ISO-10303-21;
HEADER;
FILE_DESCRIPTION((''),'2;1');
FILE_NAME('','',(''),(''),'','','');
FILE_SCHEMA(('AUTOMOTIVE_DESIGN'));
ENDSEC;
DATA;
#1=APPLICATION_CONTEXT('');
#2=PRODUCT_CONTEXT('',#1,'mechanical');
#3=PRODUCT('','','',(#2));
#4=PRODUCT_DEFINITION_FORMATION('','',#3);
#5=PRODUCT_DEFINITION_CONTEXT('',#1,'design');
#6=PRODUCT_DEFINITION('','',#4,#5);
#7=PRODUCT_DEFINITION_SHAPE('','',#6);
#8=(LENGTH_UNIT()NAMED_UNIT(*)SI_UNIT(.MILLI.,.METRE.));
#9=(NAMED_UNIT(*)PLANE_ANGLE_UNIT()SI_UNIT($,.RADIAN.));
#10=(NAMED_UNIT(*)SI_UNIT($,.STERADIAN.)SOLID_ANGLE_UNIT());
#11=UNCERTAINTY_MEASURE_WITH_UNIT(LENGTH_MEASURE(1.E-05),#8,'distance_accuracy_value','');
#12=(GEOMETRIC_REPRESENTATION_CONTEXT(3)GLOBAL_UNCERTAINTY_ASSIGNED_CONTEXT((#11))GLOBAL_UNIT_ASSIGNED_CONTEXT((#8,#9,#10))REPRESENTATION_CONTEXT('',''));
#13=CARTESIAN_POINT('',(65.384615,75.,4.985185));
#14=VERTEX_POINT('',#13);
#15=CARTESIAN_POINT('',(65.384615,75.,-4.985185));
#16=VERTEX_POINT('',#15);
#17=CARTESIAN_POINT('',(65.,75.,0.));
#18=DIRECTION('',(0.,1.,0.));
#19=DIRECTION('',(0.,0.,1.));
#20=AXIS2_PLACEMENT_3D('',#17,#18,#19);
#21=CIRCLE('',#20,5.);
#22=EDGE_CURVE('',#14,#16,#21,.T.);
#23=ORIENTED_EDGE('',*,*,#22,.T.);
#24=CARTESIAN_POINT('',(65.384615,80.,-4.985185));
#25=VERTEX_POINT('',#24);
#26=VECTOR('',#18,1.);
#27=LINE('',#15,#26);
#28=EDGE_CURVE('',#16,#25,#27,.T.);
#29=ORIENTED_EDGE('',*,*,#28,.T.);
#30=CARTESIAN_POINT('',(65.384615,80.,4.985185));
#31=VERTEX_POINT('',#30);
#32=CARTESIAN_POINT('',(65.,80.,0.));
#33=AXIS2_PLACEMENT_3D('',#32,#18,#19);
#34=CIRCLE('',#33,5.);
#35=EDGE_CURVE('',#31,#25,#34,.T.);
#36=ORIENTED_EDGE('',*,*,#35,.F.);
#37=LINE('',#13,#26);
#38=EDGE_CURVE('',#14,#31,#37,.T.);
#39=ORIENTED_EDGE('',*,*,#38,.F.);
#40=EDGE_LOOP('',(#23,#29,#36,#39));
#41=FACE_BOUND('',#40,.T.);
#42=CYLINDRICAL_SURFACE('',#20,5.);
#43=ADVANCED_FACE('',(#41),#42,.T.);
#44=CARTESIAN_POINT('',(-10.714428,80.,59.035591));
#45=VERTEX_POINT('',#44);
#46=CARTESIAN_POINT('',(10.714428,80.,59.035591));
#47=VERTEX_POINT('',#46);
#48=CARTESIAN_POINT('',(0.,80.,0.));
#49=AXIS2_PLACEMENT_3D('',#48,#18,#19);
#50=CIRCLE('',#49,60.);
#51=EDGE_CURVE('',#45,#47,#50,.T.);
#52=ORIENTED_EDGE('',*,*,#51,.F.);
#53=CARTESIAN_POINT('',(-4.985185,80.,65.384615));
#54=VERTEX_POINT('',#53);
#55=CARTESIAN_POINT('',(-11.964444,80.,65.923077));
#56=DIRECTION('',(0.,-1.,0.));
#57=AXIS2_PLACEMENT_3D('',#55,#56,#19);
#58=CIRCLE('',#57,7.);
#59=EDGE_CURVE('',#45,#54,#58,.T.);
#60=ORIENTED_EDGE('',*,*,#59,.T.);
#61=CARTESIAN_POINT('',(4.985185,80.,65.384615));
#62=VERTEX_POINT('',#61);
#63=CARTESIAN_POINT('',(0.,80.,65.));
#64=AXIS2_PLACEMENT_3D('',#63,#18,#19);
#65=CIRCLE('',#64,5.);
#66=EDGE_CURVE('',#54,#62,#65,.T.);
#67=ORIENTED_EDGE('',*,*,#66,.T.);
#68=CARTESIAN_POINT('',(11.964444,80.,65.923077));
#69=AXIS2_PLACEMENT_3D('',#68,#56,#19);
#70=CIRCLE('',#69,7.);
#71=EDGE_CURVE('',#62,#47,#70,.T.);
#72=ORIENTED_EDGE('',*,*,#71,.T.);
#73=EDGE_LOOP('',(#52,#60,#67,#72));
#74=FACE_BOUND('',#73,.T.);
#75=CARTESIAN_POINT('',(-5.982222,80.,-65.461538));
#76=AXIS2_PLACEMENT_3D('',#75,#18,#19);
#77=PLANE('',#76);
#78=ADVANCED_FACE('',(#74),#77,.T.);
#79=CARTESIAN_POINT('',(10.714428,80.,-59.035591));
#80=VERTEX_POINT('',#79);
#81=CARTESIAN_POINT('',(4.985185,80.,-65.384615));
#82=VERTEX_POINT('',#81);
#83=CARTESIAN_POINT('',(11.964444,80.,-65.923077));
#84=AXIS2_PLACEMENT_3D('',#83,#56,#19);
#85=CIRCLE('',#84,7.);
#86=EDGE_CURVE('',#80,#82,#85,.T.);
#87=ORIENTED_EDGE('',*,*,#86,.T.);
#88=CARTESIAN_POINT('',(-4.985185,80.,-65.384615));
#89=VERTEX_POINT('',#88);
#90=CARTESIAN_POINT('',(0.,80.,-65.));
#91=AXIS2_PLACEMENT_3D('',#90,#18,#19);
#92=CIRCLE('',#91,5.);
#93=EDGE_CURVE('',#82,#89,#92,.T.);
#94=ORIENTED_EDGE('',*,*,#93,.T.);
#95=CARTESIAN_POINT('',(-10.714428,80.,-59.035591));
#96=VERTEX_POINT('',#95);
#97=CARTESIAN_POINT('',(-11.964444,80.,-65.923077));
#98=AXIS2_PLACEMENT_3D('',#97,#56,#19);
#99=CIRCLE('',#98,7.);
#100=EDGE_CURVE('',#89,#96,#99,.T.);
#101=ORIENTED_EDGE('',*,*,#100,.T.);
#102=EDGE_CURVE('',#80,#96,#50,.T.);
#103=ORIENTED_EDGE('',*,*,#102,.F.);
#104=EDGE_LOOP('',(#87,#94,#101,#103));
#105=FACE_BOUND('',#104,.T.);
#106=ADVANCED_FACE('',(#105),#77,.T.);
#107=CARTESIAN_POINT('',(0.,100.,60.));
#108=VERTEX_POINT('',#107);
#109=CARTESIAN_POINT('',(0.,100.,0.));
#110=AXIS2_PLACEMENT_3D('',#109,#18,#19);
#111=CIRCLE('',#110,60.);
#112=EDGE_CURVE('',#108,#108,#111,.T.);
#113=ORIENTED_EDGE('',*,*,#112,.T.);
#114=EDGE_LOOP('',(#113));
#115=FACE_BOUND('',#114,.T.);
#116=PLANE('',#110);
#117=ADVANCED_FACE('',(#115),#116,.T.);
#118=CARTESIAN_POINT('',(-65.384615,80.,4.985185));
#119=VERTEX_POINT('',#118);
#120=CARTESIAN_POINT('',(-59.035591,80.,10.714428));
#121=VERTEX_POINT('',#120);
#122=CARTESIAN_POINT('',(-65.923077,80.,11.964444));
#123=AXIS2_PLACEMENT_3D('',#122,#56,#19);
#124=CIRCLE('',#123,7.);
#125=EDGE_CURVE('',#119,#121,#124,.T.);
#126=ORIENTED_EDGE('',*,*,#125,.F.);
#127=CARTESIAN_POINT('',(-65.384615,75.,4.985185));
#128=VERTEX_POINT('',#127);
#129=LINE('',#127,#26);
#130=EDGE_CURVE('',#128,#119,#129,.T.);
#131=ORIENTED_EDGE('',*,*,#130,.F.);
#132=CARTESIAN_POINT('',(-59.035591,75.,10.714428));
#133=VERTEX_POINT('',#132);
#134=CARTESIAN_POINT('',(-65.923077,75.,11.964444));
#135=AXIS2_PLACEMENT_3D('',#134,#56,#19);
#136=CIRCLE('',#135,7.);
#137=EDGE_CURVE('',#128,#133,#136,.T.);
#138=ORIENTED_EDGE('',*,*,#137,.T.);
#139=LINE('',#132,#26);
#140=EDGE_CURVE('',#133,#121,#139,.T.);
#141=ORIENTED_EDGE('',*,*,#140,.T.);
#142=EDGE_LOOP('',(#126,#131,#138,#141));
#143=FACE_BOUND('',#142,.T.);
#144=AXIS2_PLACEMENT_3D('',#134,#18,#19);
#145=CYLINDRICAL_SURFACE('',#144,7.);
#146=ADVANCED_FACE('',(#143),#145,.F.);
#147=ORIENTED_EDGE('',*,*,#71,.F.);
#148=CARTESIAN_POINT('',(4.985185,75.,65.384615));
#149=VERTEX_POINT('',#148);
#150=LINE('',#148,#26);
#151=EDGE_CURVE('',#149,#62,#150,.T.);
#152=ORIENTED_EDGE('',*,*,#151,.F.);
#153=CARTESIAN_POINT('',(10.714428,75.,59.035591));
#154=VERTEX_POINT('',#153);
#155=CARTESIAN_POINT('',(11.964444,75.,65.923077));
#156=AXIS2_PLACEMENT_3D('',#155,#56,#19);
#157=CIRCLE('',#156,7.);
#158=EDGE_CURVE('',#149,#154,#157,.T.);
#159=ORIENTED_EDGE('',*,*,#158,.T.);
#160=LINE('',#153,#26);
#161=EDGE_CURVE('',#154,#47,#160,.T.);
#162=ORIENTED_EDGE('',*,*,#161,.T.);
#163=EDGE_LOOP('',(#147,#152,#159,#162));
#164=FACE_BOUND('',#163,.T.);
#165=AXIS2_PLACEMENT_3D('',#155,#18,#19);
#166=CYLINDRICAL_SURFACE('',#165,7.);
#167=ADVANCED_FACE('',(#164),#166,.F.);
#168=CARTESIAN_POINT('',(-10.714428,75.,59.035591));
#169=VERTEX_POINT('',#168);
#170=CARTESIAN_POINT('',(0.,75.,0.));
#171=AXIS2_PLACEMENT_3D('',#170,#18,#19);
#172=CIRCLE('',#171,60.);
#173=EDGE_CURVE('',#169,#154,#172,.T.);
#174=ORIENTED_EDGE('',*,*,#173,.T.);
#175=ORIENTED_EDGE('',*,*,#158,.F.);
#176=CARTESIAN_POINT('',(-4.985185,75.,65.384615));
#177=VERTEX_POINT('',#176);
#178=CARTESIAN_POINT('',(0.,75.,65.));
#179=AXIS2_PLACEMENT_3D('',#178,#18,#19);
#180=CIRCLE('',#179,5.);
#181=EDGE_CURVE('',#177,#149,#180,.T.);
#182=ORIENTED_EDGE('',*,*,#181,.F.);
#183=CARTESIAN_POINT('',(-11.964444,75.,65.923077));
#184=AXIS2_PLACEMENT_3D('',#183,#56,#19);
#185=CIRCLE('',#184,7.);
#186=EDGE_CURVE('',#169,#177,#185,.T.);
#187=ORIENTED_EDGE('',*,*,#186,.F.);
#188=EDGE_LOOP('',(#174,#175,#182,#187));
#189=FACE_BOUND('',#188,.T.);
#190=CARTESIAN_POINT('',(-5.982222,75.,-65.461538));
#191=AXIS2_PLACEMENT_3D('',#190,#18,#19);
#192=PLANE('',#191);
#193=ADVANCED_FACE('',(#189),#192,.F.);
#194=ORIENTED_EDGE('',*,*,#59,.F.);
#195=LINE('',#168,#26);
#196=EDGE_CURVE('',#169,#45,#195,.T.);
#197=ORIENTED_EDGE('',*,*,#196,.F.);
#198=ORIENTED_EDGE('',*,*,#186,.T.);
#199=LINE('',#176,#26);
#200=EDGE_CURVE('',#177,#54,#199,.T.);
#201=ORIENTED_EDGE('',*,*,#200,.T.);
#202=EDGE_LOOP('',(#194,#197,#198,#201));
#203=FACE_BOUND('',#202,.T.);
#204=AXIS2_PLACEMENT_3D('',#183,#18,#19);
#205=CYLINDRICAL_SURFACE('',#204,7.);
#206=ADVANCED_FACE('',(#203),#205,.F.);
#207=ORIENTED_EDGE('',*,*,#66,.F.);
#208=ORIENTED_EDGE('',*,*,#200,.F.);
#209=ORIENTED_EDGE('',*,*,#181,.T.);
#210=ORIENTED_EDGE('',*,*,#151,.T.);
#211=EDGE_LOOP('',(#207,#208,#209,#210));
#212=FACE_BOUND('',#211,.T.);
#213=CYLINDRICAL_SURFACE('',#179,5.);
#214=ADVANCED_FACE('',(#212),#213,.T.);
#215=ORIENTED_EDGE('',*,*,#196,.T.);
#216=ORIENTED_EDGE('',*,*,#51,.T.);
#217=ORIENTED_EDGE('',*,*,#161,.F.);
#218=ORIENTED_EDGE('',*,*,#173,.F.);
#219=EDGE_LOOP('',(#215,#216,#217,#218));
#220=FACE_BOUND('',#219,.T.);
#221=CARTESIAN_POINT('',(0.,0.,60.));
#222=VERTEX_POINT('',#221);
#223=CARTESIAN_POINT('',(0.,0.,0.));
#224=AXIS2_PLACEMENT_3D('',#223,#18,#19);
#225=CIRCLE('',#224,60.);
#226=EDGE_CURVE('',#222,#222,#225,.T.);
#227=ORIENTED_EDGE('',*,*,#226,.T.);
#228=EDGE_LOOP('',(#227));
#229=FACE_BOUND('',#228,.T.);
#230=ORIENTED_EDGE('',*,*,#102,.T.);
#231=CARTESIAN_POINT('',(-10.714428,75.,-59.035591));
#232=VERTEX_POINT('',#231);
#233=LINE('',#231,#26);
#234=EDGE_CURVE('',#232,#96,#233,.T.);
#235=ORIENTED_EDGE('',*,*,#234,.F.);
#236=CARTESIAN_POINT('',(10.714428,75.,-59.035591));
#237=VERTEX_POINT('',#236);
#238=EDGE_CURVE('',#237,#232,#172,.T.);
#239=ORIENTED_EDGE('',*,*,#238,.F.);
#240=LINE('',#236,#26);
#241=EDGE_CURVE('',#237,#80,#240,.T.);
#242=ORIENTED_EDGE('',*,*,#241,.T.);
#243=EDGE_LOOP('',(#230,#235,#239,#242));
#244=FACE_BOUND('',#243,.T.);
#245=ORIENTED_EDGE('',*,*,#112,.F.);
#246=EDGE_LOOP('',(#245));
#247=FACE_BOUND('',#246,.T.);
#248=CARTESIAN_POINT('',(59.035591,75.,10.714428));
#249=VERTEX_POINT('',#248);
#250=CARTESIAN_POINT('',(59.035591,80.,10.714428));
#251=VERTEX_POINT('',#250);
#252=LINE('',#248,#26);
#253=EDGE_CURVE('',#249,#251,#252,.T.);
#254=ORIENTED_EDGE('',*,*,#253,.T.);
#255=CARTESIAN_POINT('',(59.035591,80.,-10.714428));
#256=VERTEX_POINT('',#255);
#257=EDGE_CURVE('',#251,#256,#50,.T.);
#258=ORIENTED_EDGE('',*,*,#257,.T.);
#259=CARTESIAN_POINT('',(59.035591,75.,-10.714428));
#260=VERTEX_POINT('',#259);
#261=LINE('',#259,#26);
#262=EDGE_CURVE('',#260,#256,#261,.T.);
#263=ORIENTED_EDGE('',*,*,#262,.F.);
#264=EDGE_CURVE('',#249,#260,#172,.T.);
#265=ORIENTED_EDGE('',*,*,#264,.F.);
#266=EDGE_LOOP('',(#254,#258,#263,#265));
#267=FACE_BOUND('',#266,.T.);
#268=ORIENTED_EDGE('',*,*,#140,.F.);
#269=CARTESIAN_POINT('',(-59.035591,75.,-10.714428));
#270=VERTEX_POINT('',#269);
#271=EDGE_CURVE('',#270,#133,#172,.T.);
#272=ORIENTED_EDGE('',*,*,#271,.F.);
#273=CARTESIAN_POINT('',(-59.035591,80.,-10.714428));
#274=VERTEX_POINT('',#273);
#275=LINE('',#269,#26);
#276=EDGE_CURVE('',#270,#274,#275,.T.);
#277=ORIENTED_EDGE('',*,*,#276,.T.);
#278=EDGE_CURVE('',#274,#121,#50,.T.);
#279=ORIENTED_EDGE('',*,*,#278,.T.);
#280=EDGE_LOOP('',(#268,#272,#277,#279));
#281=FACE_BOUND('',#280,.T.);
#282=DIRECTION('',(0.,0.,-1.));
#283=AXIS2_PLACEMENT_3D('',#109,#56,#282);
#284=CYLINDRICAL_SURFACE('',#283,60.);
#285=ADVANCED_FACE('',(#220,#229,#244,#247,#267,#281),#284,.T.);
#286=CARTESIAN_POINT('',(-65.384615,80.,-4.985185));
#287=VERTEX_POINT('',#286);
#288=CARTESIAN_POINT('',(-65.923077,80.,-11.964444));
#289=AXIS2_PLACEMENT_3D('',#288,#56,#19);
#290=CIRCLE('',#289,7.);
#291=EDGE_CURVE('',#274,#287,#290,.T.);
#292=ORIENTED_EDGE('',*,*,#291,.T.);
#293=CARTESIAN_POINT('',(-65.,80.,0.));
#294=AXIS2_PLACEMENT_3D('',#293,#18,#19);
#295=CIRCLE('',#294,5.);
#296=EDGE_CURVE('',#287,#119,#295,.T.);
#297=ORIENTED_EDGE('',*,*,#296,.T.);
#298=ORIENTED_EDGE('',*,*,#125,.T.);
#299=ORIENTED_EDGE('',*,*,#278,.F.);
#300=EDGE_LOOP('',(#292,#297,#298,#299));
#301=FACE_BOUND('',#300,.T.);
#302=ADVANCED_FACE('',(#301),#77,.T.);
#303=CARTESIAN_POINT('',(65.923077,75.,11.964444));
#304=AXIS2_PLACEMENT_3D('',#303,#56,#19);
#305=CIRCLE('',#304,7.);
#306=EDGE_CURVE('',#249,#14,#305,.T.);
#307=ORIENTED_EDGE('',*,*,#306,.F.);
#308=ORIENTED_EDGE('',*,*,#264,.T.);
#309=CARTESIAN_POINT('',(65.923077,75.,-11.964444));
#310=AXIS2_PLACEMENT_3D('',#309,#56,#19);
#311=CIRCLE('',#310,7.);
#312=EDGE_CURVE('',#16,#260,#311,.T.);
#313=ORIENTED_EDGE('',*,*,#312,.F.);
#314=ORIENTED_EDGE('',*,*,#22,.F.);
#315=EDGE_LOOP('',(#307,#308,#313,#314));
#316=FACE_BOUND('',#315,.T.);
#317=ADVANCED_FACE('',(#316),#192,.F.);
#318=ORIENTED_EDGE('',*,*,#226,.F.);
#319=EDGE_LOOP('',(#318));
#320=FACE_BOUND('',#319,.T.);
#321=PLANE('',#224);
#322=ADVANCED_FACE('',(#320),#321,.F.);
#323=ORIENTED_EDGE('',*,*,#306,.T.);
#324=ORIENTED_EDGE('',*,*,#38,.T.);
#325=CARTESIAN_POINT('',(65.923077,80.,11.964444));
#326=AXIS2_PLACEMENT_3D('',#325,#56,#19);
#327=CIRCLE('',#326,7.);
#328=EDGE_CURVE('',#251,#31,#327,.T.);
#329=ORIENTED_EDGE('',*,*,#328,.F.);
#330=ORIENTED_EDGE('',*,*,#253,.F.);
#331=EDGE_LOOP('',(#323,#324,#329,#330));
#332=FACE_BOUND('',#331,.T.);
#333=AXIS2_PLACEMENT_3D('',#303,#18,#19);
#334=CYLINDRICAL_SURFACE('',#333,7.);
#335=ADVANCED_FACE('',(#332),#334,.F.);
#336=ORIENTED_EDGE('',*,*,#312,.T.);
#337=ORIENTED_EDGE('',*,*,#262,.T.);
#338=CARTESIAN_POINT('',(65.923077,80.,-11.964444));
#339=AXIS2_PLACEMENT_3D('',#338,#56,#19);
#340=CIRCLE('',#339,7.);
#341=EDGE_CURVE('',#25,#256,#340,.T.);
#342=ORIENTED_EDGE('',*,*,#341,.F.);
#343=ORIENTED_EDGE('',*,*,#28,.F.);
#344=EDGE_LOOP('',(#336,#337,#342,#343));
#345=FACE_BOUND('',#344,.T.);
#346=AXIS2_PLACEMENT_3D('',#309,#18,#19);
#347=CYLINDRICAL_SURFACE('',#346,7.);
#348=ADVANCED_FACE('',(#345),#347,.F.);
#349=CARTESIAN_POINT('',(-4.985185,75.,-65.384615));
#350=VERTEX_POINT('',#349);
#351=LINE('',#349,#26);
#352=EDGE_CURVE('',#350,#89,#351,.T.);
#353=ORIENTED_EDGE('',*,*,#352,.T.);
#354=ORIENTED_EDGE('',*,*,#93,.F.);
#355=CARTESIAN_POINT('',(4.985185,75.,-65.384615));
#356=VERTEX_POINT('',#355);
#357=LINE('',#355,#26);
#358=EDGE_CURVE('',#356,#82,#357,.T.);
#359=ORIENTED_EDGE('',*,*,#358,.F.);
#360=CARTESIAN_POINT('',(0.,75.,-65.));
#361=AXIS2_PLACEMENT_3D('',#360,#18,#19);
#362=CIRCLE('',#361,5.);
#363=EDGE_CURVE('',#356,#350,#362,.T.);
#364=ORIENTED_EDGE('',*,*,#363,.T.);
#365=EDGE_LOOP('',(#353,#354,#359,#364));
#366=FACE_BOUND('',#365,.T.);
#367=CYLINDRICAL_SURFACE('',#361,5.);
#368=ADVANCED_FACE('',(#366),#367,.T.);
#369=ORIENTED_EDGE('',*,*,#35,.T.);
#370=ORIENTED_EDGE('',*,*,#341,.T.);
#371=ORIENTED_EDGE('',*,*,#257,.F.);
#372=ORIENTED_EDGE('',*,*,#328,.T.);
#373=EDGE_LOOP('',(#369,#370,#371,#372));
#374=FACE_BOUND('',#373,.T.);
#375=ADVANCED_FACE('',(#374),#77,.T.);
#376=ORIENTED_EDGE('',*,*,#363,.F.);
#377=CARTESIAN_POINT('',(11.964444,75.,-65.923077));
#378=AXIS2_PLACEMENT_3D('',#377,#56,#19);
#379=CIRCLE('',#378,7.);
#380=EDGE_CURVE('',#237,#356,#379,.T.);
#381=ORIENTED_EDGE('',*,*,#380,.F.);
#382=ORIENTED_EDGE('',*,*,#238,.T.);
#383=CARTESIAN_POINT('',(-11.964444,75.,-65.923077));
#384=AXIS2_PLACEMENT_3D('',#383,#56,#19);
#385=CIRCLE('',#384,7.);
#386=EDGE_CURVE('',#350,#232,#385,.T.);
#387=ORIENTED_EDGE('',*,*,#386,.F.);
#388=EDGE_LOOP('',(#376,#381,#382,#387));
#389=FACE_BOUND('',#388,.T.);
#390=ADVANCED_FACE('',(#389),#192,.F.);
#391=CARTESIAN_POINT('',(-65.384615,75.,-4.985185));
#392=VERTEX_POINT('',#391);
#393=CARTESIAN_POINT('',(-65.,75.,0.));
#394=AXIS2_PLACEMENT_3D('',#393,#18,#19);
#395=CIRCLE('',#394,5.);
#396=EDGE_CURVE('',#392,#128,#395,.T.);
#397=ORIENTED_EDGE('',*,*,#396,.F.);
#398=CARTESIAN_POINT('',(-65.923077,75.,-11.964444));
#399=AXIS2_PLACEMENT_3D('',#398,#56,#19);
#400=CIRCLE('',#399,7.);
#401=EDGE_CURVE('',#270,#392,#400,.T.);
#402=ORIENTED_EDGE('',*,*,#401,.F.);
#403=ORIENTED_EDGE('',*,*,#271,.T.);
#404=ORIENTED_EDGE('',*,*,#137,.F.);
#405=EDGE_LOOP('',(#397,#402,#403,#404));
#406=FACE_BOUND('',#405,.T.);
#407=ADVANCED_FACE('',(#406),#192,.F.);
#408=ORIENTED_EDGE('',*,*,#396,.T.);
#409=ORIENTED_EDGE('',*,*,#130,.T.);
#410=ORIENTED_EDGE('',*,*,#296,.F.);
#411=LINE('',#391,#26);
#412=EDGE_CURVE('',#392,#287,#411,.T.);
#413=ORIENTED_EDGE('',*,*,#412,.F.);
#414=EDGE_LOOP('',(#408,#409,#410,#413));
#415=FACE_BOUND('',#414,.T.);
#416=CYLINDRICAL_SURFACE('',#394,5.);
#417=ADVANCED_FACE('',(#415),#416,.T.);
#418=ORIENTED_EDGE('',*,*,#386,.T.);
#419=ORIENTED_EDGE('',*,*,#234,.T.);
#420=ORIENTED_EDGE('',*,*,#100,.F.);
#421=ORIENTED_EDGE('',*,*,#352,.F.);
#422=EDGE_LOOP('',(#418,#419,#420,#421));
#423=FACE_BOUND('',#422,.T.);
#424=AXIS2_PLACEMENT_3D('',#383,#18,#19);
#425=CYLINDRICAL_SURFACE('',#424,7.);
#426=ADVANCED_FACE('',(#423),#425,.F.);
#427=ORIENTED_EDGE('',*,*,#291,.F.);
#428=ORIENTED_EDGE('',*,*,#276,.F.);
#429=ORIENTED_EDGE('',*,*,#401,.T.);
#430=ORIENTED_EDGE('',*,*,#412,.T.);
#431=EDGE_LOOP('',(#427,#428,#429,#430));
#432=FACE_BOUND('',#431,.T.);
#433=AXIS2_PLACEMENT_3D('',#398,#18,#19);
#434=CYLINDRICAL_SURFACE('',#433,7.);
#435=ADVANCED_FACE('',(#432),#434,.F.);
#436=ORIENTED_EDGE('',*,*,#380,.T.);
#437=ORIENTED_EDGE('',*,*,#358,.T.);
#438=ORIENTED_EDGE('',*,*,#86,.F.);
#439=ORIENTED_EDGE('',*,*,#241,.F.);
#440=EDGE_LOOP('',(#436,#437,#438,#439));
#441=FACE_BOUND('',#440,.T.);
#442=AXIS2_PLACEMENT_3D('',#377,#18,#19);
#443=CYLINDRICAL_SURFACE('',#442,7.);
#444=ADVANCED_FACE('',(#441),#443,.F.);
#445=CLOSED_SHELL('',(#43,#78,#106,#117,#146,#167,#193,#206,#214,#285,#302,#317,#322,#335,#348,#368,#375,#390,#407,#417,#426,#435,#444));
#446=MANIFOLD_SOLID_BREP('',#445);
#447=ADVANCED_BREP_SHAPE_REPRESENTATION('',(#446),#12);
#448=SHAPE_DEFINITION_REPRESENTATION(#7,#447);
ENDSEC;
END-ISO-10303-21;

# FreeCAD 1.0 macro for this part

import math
import FreeCAD as App
import Part
import Sketcher
Q = App.Units.Quantity

doc = App.newDocument("Part")
body = doc.addObject("PartDesign::Body", "Body")

# Sketch on XZ plane
sketch1 = body.newObject("Sketcher::SketchObject", "Sketch")
sketch1.AttachmentSupport = (doc.getObject("XZ_Plane"), [""])
sketch1.MapMode = "FlatFace"
sketch1.addGeometry(Part.Circle(App.Vector(0, 0, 0), App.Vector(0, 0, 1), 60), False)
sketch1.addConstraint([
    Sketcher.Constraint("Coincident", 0, 3, -1, 1),
    Sketcher.Constraint("Diameter", 0, Q("120 mm")),
])
pad1 = body.newObject("PartDesign::Pad", "Pad")
pad1.Profile = sketch1
pad1.Length = 100
pad1.Reversed = True

# Sketch on XZ plane
sketch2 = body.newObject("Sketcher::SketchObject", "Sketch001")
sketch2.AttachmentSupport = (doc.getObject("XZ_Plane"), [""])
sketch2.MapMode = "FlatFace"
sketch2.AttachmentOffset = App.Placement(App.Vector(0, 0, -75), App.Rotation())
sketch2.addGeometry([
    Part.ArcOfCircle(Part.Circle(App.Vector(0, 0, 0), App.Vector(0, 0, 1), 60), math.radians(-170), math.radians(-100)),  # 0
    Part.ArcOfCircle(Part.Circle(App.Vector(-66, -12, 0), App.Vector(0, 0, 1), 7), math.radians(10), math.radians(86)),  # 1
    Part.ArcOfCircle(Part.Circle(App.Vector(-65, 0, 0), App.Vector(0, 0, 1), 5), math.radians(94), math.radians(266)),  # 2
    Part.ArcOfCircle(Part.Circle(App.Vector(-66, 12, 0), App.Vector(0, 0, 1), 7), math.radians(-86), math.radians(-10)),  # 3
    Part.ArcOfCircle(Part.Circle(App.Vector(0, 0, 0), App.Vector(0, 0, 1), 60), math.radians(100), math.radians(170)),  # 4
    Part.ArcOfCircle(Part.Circle(App.Vector(-12, 66, 0), App.Vector(0, 0, 1), 7), math.radians(-80), math.radians(-4)),  # 5
    Part.ArcOfCircle(Part.Circle(App.Vector(0, 65, 0), App.Vector(0, 0, 1), 5), math.radians(4), math.radians(176)),  # 6
    Part.ArcOfCircle(Part.Circle(App.Vector(12, 66, 0), App.Vector(0, 0, 1), 7), math.radians(-176), math.radians(-100)),  # 7
    Part.ArcOfCircle(Part.Circle(App.Vector(0, 0, 0), App.Vector(0, 0, 1), 60), math.radians(10), math.radians(80)),  # 8
    Part.ArcOfCircle(Part.Circle(App.Vector(66, 12, 0), App.Vector(0, 0, 1), 7), math.radians(-170), math.radians(-94)),  # 9
    Part.ArcOfCircle(Part.Circle(App.Vector(65, 0, 0), App.Vector(0, 0, 1), 5), math.radians(-86), math.radians(86)),  # 10
    Part.ArcOfCircle(Part.Circle(App.Vector(66, -12, 0), App.Vector(0, 0, 1), 7), math.radians(94), math.radians(170)),  # 11
    Part.ArcOfCircle(Part.Circle(App.Vector(0, 0, 0), App.Vector(0, 0, 1), 60), math.radians(-80), math.radians(-10)),  # 12
    Part.ArcOfCircle(Part.Circle(App.Vector(12, -66, 0), App.Vector(0, 0, 1), 7), math.radians(100), math.radians(176)),  # 13
    Part.ArcOfCircle(Part.Circle(App.Vector(0, -65, 0), App.Vector(0, 0, 1), 5), math.radians(-176), math.radians(-4)),  # 14
    Part.ArcOfCircle(Part.Circle(App.Vector(-12, -66, 0), App.Vector(0, 0, 1), 7), math.radians(4), math.radians(80)),  # 15
], False)
sketch2.addConstraint([
    Sketcher.Constraint("Tangent", 0, 1, 1, 1),
    Sketcher.Constraint("Tangent", 1, 2, 2, 2),
    Sketcher.Constraint("Tangent", 2, 1, 3, 1),
    Sketcher.Constraint("Tangent", 3, 2, 4, 2),
    Sketcher.Constraint("Tangent", 4, 1, 5, 1),
    Sketcher.Constraint("Tangent", 5, 2, 6, 2),
    Sketcher.Constraint("Tangent", 6, 1, 7, 1),
    Sketcher.Constraint("Tangent", 7, 2, 8, 2),
    Sketcher.Constraint("Tangent", 8, 1, 9, 1),
    Sketcher.Constraint("Tangent", 9, 2, 10, 2),
    Sketcher.Constraint("Tangent", 10, 1, 11, 1),
    Sketcher.Constraint("Tangent", 11, 2, 12, 2),
    Sketcher.Constraint("Tangent", 12, 1, 13, 1),
    Sketcher.Constraint("Tangent", 13, 2, 14, 2),
    Sketcher.Constraint("Tangent", 14, 1, 15, 1),
    Sketcher.Constraint("Tangent", 15, 2, 0, 2),
    Sketcher.Constraint("Coincident", 0, 3, -1, 1),
    Sketcher.Constraint("Coincident", 4, 3, -1, 1),
    Sketcher.Constraint("Coincident", 8, 3, -1, 1),
    Sketcher.Constraint("Coincident", 12, 3, -1, 1),
    Sketcher.Constraint("Equal", 1, 3),
    Sketcher.Constraint("Equal", 0, 4),
    Sketcher.Constraint("Equal", 3, 5),
    Sketcher.Constraint("Equal", 2, 6),
    Sketcher.Constraint("Equal", 5, 7),
    Sketcher.Constraint("Equal", 4, 8),
    Sketcher.Constraint("Equal", 7, 9),
    Sketcher.Constraint("Equal", 6, 10),
    Sketcher.Constraint("Equal", 9, 11),
    Sketcher.Constraint("Equal", 8, 12),
    Sketcher.Constraint("Equal", 11, 13),
    Sketcher.Constraint("Equal", 10, 14),
    Sketcher.Constraint("Equal", 13, 15),
    Sketcher.Constraint("Symmetric", 2, 3, 10, 3, -1, 1),
    Sketcher.Constraint("Symmetric", 6, 3, 14, 3, -1, 1),
    Sketcher.Constraint("PointOnObject", 2, 3, -1),
    Sketcher.Constraint("PointOnObject", 6, 3, -2),
    Sketcher.Constraint("Radius", 0, Q("60 mm")),
    Sketcher.Constraint("Radius", 1, Q("7 mm")),
    Sketcher.Constraint("Radius", 2, Q("5 mm")),
    Sketcher.Constraint("DistanceX", 2, 3, -1, 1, Q("65 mm")),
    Sketcher.Constraint("DistanceY", -1, 1, 6, 3, Q("65 mm")),
])
pad2 = body.newObject("PartDesign::Pad", "Pad001")
pad2.Profile = sketch2
pad2.Length = 5
pad2.Reversed = True

doc.recompute()
